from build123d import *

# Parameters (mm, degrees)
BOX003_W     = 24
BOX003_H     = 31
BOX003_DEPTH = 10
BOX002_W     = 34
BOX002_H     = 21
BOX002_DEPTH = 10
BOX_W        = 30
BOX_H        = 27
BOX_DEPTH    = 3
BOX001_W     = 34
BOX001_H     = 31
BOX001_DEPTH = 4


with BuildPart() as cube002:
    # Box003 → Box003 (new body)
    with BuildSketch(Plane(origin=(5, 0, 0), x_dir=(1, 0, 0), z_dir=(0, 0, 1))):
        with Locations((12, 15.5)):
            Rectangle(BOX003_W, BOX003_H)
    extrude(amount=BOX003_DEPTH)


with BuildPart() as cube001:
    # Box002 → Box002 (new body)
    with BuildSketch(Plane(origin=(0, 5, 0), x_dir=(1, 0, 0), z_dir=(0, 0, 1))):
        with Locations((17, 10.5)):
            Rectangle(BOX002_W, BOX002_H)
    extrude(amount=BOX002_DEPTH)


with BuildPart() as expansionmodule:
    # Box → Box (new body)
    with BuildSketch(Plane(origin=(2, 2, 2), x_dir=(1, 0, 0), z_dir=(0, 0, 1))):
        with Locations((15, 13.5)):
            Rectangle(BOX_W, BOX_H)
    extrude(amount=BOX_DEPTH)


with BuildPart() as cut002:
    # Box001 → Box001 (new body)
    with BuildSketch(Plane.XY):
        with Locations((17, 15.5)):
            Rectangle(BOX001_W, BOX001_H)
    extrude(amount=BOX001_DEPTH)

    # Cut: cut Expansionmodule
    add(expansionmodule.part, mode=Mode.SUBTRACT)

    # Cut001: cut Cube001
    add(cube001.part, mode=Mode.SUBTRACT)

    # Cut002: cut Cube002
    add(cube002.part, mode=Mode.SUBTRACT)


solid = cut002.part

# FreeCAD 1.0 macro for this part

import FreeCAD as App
import Part
import Sketcher

V = App.Vector
Q = App.Units.Quantity


def add_polygon(sketch, points):
    """Adds a closed chain of lines whose ends are joined by coincident constraints."""
    first, n = sketch.GeometryCount, len(points)
    for a, b in zip(points, points[1:] + points[:1]):
        sketch.addGeometry(Part.LineSegment(App.Vector(*a, 0), App.Vector(*b, 0)), False)
    for i in range(n):
        sketch.addConstraint(Sketcher.Constraint("Coincident", first + i, 2, first + (i + 1) % n, 1))

doc = App.newDocument("Part")
params = doc.addObject("Spreadsheet::Sheet", "Params")
for row, (alias, value) in enumerate([
    ("sketch1_width", "24 mm"),
    ("sketch1_height", "31 mm"),
    ("pad1_length", "10 mm"),
    ("sketch2_width", "34 mm"),
    ("sketch2_height", "21 mm"),
    ("pad2_length", "10 mm"),
    ("sketch3_width", "30 mm"),
    ("sketch3_height", "27 mm"),
    ("pad3_length", "3 mm"),
    ("sketch4_width", "34 mm"),
    ("sketch4_height", "31 mm"),
    ("pad4_length", "4 mm"),
], start=1):
    params.set(f"A{row}", alias)
    params.set(f"B{row}", "=" + value)
    params.setAlias(f"B{row}", alias)

body = doc.addObject("PartDesign::Body", "Body")

# Sketch on XY plane
sketch1 = body.newObject("Sketcher::SketchObject", "Sketch")
sketch1.AttachmentSupport = (doc.getObject("XY_Plane"), [""])
sketch1.MapMode = "FlatFace"
add_polygon(sketch1, [(5, 31), (5, 0), (29, 0), (29, 31)])  # lines 0-3
sketch1.addConstraint([
    Sketcher.Constraint("Vertical", 0),
    Sketcher.Constraint("Horizontal", 1),
    Sketcher.Constraint("Vertical", 2),
    Sketcher.Constraint("Horizontal", 3),
    Sketcher.Constraint("PointOnObject", 0, 2, -1),
    Sketcher.Constraint("DistanceX", 1, 1, 1, 2, Q("24 mm")),
    Sketcher.Constraint("DistanceY", 0, 2, 0, 1, Q("31 mm")),
    Sketcher.Constraint("DistanceX", -1, 1, 0, 2, Q("5 mm")),
])
sketch1.setExpression("Constraints[9]", "Params.sketch1_width")
sketch1.setExpression("Constraints[10]", "Params.sketch1_height")
pad1 = body.newObject("PartDesign::Pad", "Pad")
pad1.Profile = sketch1
pad1.setExpression("Length", "Params.pad1_length")
body2 = doc.addObject("PartDesign::Body", "Body001")

# Sketch on XY plane
sketch2 = body2.newObject("Sketcher::SketchObject", "Sketch001")
sketch2.AttachmentSupport = (doc.getObject("XY_Plane001"), [""])
sketch2.MapMode = "FlatFace"
add_polygon(sketch2, [(0, 26), (0, 5), (34, 5), (34, 26)])  # lines 0-3
sketch2.addConstraint([
    Sketcher.Constraint("Vertical", 0),
    Sketcher.Constraint("Horizontal", 1),
    Sketcher.Constraint("Vertical", 2),
    Sketcher.Constraint("Horizontal", 3),
    Sketcher.Constraint("PointOnObject", 0, 2, -2),
    Sketcher.Constraint("DistanceX", 1, 1, 1, 2, Q("34 mm")),
    Sketcher.Constraint("DistanceY", 0, 2, 0, 1, Q("21 mm")),
    Sketcher.Constraint("DistanceY", -1, 1, 0, 2, Q("5 mm")),
])
sketch2.setExpression("Constraints[9]", "Params.sketch2_width")
sketch2.setExpression("Constraints[10]", "Params.sketch2_height")
pad2 = body2.newObject("PartDesign::Pad", "Pad001")
pad2.Profile = sketch2
pad2.setExpression("Length", "Params.pad2_length")
body3 = doc.addObject("PartDesign::Body", "Body002")

# Sketch on XY plane
sketch3 = body3.newObject("Sketcher::SketchObject", "Sketch002")
sketch3.AttachmentSupport = (doc.getObject("XY_Plane002"), [""])
sketch3.MapMode = "FlatFace"
sketch3.AttachmentOffset = App.Placement(V(0, 0, 2), App.Rotation())
add_polygon(sketch3, [(2, 29), (2, 2), (32, 2), (32, 29)])  # lines 0-3
sketch3.addConstraint([
    Sketcher.Constraint("Vertical", 0),
    Sketcher.Constraint("Horizontal", 1),
    Sketcher.Constraint("Vertical", 2),
    Sketcher.Constraint("Horizontal", 3),
    Sketcher.Constraint("DistanceX", 1, 1, 1, 2, Q("30 mm")),
    Sketcher.Constraint("DistanceY", 0, 2, 0, 1, Q("27 mm")),
    Sketcher.Constraint("DistanceX", -1, 1, 0, 2, Q("2 mm")),
    Sketcher.Constraint("DistanceY", -1, 1, 0, 2, Q("2 mm")),
])
sketch3.setExpression("Constraints[8]", "Params.sketch3_width")
sketch3.setExpression("Constraints[9]", "Params.sketch3_height")
pad3 = body3.newObject("PartDesign::Pad", "Pad002")
pad3.Profile = sketch3
pad3.setExpression("Length", "Params.pad3_length")
body4 = doc.addObject("PartDesign::Body", "Body003")
body4.AllowCompound = True

# Sketch on XY plane
sketch4 = body4.newObject("Sketcher::SketchObject", "Sketch003")
sketch4.AttachmentSupport = (doc.getObject("XY_Plane003"), [""])
sketch4.MapMode = "FlatFace"
add_polygon(sketch4, [(0, 31), (0, 0), (34, 0), (34, 31)])  # lines 0-3
sketch4.addConstraint([
    Sketcher.Constraint("Vertical", 0),
    Sketcher.Constraint("Horizontal", 1),
    Sketcher.Constraint("Vertical", 2),
    Sketcher.Constraint("Horizontal", 3),
    Sketcher.Constraint("Coincident", 0, 2, -1, 1),
    Sketcher.Constraint("DistanceX", 1, 1, 1, 2, Q("34 mm")),
    Sketcher.Constraint("DistanceY", 0, 2, 0, 1, Q("31 mm")),
])
sketch4.setExpression("Constraints[9]", "Params.sketch4_width")
sketch4.setExpression("Constraints[10]", "Params.sketch4_height")
pad4 = body4.newObject("PartDesign::Pad", "Pad003")
pad4.Profile = sketch4
pad4.setExpression("Length", "Params.pad4_length")
doc.recompute()

boolean = body4.newObject("PartDesign::Boolean", "Boolean")
boolean.Type = "Cut"
boolean.addObjects([body3])
doc.recompute()

boolean2 = body4.newObject("PartDesign::Boolean", "Boolean001")
boolean2.Type = "Cut"
boolean2.addObjects([body2])
doc.recompute()

boolean3 = body4.newObject("PartDesign::Boolean", "Boolean002")
boolean3.Type = "Cut"
boolean3.addObjects([body])

doc.recompute()
